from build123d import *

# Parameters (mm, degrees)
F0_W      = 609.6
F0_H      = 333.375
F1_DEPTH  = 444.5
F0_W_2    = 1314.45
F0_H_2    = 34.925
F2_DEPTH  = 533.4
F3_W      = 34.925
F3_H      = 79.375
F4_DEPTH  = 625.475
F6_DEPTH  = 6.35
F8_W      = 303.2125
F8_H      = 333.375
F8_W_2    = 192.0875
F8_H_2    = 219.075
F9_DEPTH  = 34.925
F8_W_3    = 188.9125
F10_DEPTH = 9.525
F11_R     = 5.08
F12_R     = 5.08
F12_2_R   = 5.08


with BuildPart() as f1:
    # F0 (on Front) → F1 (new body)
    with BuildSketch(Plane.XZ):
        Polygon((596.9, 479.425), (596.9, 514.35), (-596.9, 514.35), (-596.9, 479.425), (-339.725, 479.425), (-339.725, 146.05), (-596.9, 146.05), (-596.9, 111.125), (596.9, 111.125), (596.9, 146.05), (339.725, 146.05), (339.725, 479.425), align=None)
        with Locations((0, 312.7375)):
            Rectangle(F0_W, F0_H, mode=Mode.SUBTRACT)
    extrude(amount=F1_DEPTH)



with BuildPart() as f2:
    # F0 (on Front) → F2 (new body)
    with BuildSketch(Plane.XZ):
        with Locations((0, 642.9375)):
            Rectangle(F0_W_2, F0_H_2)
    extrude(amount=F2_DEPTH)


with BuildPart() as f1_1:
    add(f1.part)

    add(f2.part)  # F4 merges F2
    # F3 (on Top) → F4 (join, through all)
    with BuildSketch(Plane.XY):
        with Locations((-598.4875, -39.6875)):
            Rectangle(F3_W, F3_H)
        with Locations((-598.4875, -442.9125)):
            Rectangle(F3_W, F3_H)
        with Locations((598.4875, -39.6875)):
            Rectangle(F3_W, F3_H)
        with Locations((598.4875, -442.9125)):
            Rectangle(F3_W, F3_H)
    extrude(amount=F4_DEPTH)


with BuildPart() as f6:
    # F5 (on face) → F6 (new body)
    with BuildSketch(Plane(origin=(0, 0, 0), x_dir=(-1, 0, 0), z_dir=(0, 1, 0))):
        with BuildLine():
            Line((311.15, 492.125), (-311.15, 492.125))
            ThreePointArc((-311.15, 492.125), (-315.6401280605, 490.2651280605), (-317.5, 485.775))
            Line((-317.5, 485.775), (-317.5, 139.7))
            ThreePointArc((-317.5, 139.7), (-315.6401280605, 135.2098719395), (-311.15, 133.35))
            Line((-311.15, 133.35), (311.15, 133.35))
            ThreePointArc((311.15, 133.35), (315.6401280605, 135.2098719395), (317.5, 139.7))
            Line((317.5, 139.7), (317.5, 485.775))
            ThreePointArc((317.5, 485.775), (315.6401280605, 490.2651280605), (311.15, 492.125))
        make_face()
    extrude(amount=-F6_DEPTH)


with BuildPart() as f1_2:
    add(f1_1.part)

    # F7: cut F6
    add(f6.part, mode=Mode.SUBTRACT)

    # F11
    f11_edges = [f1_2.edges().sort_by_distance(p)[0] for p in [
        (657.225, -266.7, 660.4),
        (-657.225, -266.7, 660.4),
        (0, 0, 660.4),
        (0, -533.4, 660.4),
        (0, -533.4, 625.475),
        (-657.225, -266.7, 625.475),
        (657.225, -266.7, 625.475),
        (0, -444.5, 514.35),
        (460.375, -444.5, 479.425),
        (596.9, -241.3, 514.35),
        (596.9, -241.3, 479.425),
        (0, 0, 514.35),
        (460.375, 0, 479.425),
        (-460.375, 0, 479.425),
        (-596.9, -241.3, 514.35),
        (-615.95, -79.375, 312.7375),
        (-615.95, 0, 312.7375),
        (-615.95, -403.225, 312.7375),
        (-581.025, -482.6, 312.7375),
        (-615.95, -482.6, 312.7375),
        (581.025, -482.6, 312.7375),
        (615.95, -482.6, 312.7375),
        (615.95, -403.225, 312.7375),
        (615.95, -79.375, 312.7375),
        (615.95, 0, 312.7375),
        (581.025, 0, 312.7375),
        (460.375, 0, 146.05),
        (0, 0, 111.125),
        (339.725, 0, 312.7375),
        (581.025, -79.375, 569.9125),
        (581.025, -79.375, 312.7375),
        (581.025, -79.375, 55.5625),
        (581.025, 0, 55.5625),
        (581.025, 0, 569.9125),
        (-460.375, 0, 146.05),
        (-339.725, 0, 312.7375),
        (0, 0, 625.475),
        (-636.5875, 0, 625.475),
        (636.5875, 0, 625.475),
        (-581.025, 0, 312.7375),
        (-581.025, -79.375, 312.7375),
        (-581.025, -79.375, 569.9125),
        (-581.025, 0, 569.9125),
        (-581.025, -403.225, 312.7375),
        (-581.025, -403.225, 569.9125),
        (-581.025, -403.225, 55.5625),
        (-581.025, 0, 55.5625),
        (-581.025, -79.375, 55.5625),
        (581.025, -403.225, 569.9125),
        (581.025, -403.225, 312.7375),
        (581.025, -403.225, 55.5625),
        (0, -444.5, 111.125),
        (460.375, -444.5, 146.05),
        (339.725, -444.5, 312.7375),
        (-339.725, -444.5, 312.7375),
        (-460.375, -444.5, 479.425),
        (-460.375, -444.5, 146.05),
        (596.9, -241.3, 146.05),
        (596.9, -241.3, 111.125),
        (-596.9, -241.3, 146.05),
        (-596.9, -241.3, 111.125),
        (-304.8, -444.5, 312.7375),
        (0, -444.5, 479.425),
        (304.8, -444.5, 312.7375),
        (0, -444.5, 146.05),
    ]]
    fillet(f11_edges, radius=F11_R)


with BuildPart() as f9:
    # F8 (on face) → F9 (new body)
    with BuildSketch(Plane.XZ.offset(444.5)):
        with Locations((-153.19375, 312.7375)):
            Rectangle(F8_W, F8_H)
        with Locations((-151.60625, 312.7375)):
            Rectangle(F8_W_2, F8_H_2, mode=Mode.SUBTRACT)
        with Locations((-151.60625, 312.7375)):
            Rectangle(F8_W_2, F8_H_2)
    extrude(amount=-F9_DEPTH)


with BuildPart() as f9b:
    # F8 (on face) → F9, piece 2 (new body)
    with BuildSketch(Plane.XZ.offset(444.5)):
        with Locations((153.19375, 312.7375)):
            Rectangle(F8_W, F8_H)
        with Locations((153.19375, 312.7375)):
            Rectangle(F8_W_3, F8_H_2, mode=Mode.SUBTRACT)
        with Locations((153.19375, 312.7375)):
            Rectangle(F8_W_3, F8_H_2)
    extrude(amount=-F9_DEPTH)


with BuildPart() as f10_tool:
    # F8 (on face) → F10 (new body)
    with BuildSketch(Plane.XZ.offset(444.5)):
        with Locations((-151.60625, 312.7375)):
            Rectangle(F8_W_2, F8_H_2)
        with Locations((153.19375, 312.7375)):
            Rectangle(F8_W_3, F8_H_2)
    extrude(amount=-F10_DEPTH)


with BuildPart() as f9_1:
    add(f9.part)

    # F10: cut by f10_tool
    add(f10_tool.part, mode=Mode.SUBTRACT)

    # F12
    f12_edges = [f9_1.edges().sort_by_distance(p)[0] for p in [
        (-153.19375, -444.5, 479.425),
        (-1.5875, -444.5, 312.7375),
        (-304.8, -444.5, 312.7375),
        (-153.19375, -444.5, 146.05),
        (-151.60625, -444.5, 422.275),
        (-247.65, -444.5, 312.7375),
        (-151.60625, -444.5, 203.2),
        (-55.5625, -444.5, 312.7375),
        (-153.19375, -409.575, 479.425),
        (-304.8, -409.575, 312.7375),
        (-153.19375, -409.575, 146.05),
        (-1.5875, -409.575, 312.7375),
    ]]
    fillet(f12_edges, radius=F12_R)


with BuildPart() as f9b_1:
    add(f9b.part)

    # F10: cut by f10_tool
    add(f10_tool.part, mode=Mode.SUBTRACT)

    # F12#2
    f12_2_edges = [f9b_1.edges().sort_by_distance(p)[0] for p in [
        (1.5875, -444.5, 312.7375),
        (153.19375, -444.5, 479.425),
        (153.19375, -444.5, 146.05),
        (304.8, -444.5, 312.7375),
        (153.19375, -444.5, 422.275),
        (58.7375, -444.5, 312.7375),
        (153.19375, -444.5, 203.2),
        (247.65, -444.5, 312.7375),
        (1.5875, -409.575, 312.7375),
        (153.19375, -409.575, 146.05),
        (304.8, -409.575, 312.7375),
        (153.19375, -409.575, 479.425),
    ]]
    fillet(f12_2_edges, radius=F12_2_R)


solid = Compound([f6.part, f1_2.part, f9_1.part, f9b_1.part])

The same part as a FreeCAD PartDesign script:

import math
import FreeCAD as App
import Part
import Sketcher
Q = App.Units.Quantity


def edges_at(feature, points):
    """Names of the edges that pass closest to the given points."""
    edges = feature.Shape.Edges
    near = lambda p: min(range(len(edges)), key=lambda i: edges[i].distToShape(Part.Vertex(*p))[0])
    return sorted({f"Edge{near(p) + 1}" for p in points})


def add_polygon(sketch, points):
    """Adds a closed chain of lines whose ends are joined by coincident constraints."""
    first, n = sketch.GeometryCount, len(points)
    for a, b in zip(points, points[1:] + points[:1]):
        sketch.addGeometry(Part.LineSegment(App.Vector(*a, 0), App.Vector(*b, 0)), False)
    for i in range(n):
        sketch.addConstraint(Sketcher.Constraint("Coincident", first + i, 2, first + (i + 1) % n, 1))

doc = App.newDocument("Part")
body = doc.addObject("PartDesign::Body", "Body")

sketch1 = body.newObject("Sketcher::SketchObject", "Sketch")
sketch1.AttachmentSupport = (doc.getObject("XZ_Plane"), [""])
sketch1.MapMode = "FlatFace"
add_polygon(sketch1, [(597, 479), (597, 514), (-597, 514), (-597, 479), (-340, 479), (-340, 146), (-597, 146), (-597, 111), (597, 111), (597, 146), (340, 146), (340, 479)])
add_polygon(sketch1, [(305, 146), (-305, 146), (-305, 479), (305, 479)])
sketch1.addConstraint([
    Sketcher.Constraint("Vertical", 0),
    Sketcher.Constraint("Horizontal", 1),
    Sketcher.Constraint("Vertical", 2),
    Sketcher.Constraint("Horizontal", 3),
    Sketcher.Constraint("Vertical", 4),
    Sketcher.Constraint("Horizontal", 5),
    Sketcher.Constraint("Vertical", 6),
    Sketcher.Constraint("Horizontal", 7),
    Sketcher.Constraint("Vertical", 8),
    Sketcher.Constraint("Horizontal", 9),
    Sketcher.Constraint("Vertical", 10),
    Sketcher.Constraint("Horizontal", 11),
    Sketcher.Constraint("Horizontal", 12),
    Sketcher.Constraint("Vertical", 13),
    Sketcher.Constraint("Horizontal", 14),
    Sketcher.Constraint("Vertical", 15),
    Sketcher.Constraint("Symmetric", 5, 2, 8, 2, -2),
    Sketcher.Constraint("Symmetric", 3, 2, 10, 2, -2),
    Sketcher.Constraint("Horizontal", 9, 2, 12, 2),
    Sketcher.Constraint("Horizontal", 11, 2, 13, 2),
    Sketcher.Constraint("Vertical", 2, 2, 5, 2),
    Sketcher.Constraint("Vertical", 0, 2, 7, 2),
    Sketcher.Constraint("Equal", 2, 6),
    Sketcher.Constraint("DistanceX", 1, 2, 1, 1, Q("47 in")),
    Sketcher.Constraint("DistanceX", 12, 2, 12, 1, Q("24 in")),
    Sketcher.Constraint("DistanceX", 12, 2, -1, 1, Q("12 in")),
    Sketcher.Constraint("DistanceY", 4, 2, 1, 2, Q("14.5 in")),
    Sketcher.Constraint("DistanceX", 3, 1, 3, 2, Q("10.125 in")),
    Sketcher.Constraint("DistanceY", 0, 1, 0, 2, Q("1.375 in")),
    Sketcher.Constraint("DistanceY", -1, 1, 0, 2, Q("20.25 in")),
])
pad1 = body.newObject("PartDesign::Pad", "Pad")
pad1.Profile = sketch1
pad1.Length = Q("17.5 in")
body2 = doc.addObject("PartDesign::Body", "Body001")

sketch2 = body2.newObject("Sketcher::SketchObject", "Sketch001")
sketch2.AttachmentSupport = (doc.getObject("XZ_Plane001"), [""])
sketch2.MapMode = "FlatFace"
add_polygon(sketch2, [(-657, 660), (-657, 625), (657, 625), (657, 660)])
sketch2.addConstraint([
    Sketcher.Constraint("Vertical", 0),
    Sketcher.Constraint("Horizontal", 1),
    Sketcher.Constraint("Vertical", 2),
    Sketcher.Constraint("Horizontal", 3),
    Sketcher.Constraint("DistanceY", -1, 1, 2, 2, Q("26 in")),
    Sketcher.Constraint("DistanceX", 1, 1, 1, 2, Q("51.75 in")),
    Sketcher.Constraint("DistanceY", 0, 2, 0, 1, Q("1.375 in")),
    Sketcher.Constraint("DistanceX", 0, 2, -1, 1, Q("25.875 in")),
])
pad2 = body2.newObject("PartDesign::Pad", "Pad001")
pad2.Profile = sketch2
pad2.Length = Q("21 in")
body.AllowCompound = True
doc.recompute()

boolean = body.newObject("PartDesign::Boolean", "Boolean")
boolean.Type = "Fuse"
boolean.addObjects([body2])

sketch3 = body.newObject("Sketcher::SketchObject", "Sketch002")
sketch3.AttachmentSupport = (doc.getObject("XY_Plane"), [""])
sketch3.MapMode = "FlatFace"
add_polygon(sketch3, [(-616, 0), (-616, -79), (-581, -79), (-581, 0)])
add_polygon(sketch3, [(-616, -403), (-616, -483), (-581, -483), (-581, -403)])
add_polygon(sketch3, [(581, 0), (581, -79), (616, -79), (616, 0)])
add_polygon(sketch3, [(581, -403), (581, -483), (616, -483), (616, -403)])
sketch3.addConstraint([
    Sketcher.Constraint("Vertical", 0),
    Sketcher.Constraint("Horizontal", 1),
    Sketcher.Constraint("Vertical", 2),
    Sketcher.Constraint("Horizontal", 3),
    Sketcher.Constraint("Vertical", 4),
    Sketcher.Constraint("Horizontal", 5),
    Sketcher.Constraint("Vertical", 6),
    Sketcher.Constraint("Horizontal", 7),
    Sketcher.Constraint("Vertical", 8),
    Sketcher.Constraint("Horizontal", 9),
    Sketcher.Constraint("Vertical", 10),
    Sketcher.Constraint("Horizontal", 11),
    Sketcher.Constraint("Vertical", 12),
    Sketcher.Constraint("Horizontal", 13),
    Sketcher.Constraint("Vertical", 14),
    Sketcher.Constraint("Horizontal", 15),
    Sketcher.Constraint("Symmetric", 3, 2, 10, 2, -1, 1),
    Sketcher.Constraint("Symmetric", 1, 2, 8, 2, -2),
    Sketcher.Constraint("Symmetric", 5, 2, 12, 2, -2),
    Sketcher.Constraint("Symmetric", 7, 2, 14, 2, -2),
    Sketcher.Constraint("PointOnObject", 2, 2, -1),
    Sketcher.Constraint("Vertical", 3, 2, 4, 2),
    Sketcher.Constraint("Vertical", 2, 2, 5, 2),
    Sketcher.Constraint("Equal", 2, 4),
    Sketcher.Constraint("DistanceY", 4, 2, -1, 1, Q("19 in")),
    Sketcher.Constraint("DistanceX", 0, 2, 9, 2, Q("48.5 in")),
    Sketcher.Constraint("DistanceX", 1, 1, 1, 2, Q("1.375 in")),
    Sketcher.Constraint("DistanceY", 0, 2, 0, 1, Q("3.125 in")),
])
pad3 = body.newObject("PartDesign::Pad", "Pad002")
pad3.Profile = sketch3
pad3.Type = "UpToLast"
body3 = doc.addObject("PartDesign::Body", "Body002")

sketch4 = body3.newObject("Sketcher::SketchObject", "Sketch003")
sketch4.AttachmentSupport = (doc.getObject("XZ_Plane002"), [""])
sketch4.MapMode = "FlatFace"
sketch4.addGeometry([
    Part.LineSegment(App.Vector(-311, 492, 0), App.Vector(311, 492, 0)),
    Part.ArcOfCircle(Part.Circle(App.Vector(311, 486, 0), App.Vector(0, 0, 1), 6), math.radians(0), math.radians(90)),
    Part.LineSegment(App.Vector(318, 486, 0), App.Vector(318, 140, 0)),
    Part.ArcOfCircle(Part.Circle(App.Vector(311, 140, 0), App.Vector(0, 0, 1), 6), math.radians(-90), math.radians(0)),
    Part.LineSegment(App.Vector(311, 133, 0), App.Vector(-311, 133, 0)),
    Part.ArcOfCircle(Part.Circle(App.Vector(-311, 140, 0), App.Vector(0, 0, 1), 6), math.radians(180), math.radians(270)),
    Part.LineSegment(App.Vector(-318, 140, 0), App.Vector(-318, 486, 0)),
    Part.ArcOfCircle(Part.Circle(App.Vector(-311, 486, 0), App.Vector(0, 0, 1), 6), math.radians(90), math.radians(180)),
], False)
sketch4.addConstraint([
    Sketcher.Constraint("Tangent", 0, 2, 1, 2),
    Sketcher.Constraint("Tangent", 1, 1, 2, 1),
    Sketcher.Constraint("Tangent", 2, 2, 3, 2),
    Sketcher.Constraint("Tangent", 3, 1, 4, 1),
    Sketcher.Constraint("Tangent", 4, 2, 5, 2),
    Sketcher.Constraint("Tangent", 5, 1, 6, 1),
    Sketcher.Constraint("Tangent", 6, 2, 7, 2),
    Sketcher.Constraint("Tangent", 7, 1, 0, 1),
    Sketcher.Constraint("Horizontal", 0),
    Sketcher.Constraint("Vertical", 2),
    Sketcher.Constraint("Horizontal", 4),
    Sketcher.Constraint("Vertical", 6),
    Sketcher.Constraint("Equal", 1, 3),
    Sketcher.Constraint("Equal", 3, 5),
    Sketcher.Constraint("Equal", 5, 7),
    Sketcher.Constraint("Radius", 1, Q("0.25 in")),
    Sketcher.Constraint("DistanceX", 0, 1, 0, 2, Q("24.5 in")),
    Sketcher.Constraint("DistanceY", -1, 1, 3, 3, Q("5.5 in")),
    Sketcher.Constraint("DistanceX", -1, 1, 1, 1, Q("12.5 in")),
    Sketcher.Constraint("DistanceY", 2, 2, 2, 1, Q("13.625 in")),
])
pad4 = body3.newObject("PartDesign::Pad", "Pad003")
pad4.Profile = sketch4
pad4.Length = Q("0.25 in")
doc.recompute()

body4 = doc.addObject("PartDesign::Body", "Body003")
body4.BaseFeature = body3
boolean2 = body.newObject("PartDesign::Boolean", "Boolean001")
boolean2.Type = "Cut"
boolean2.addObjects([body4])
doc.recompute()

fillet = body.newObject("PartDesign::Fillet", "Fillet")
fillet.Base = (boolean2, edges_at(boolean2, [
    (657.225, -266.7, 660.4),
    (-657.225, -266.7, 660.4),
    (0, 0, 660.4),
    (0, -533.4, 660.4),
    (0, -533.4, 625.475),
    (-657.225, -266.7, 625.475),
    (657.225, -266.7, 625.475),
    (0, -444.5, 514.35),
    (460.375, -444.5, 479.425),
    (596.9, -241.3, 514.35),
    (596.9, -241.3, 479.425),
    (0, 0, 514.35),
    (460.375, 0, 479.425),
    (-460.375, 0, 479.425),
    (-596.9, -241.3, 514.35),
    (-615.95, -79.375, 312.738),
    (-615.95, 0, 312.738),
    (-615.95, -403.225, 312.738),
    (-581.025, -482.6, 312.738),
    (-615.95, -482.6, 312.738),
    (581.025, -482.6, 312.738),
    (615.95, -482.6, 312.738),
    (615.95, -403.225, 312.738),
    (615.95, -79.375, 312.738),
    (615.95, 0, 312.738),
    (581.025, 0, 312.738),
    (460.375, 0, 146.05),
    (0, 0, 111.125),
    (339.725, 0, 312.738),
    (581.025, -79.375, 569.913),
    (581.025, -79.375, 312.738),
    (581.025, -79.375, 55.562),
    (581.025, 0, 55.562),
    (581.025, 0, 569.913),
    (-460.375, 0, 146.05),
    (-339.725, 0, 312.738),
    (0, 0, 625.475),
    (-636.587, 0, 625.475),
    (636.587, 0, 625.475),
    (-581.025, 0, 312.738),
    (-581.025, -79.375, 312.738),
    (-581.025, -79.375, 569.913),
    (-581.025, 0, 569.913),
    (-581.025, -403.225, 312.738),
    (-581.025, -403.225, 569.913),
    (-581.025, -403.225, 55.562),
    (-581.025, 0, 55.562),
    (-581.025, -79.375, 55.562),
    (581.025, -403.225, 569.913),
    (581.025, -403.225, 312.738),
    (581.025, -403.225, 55.562),
    (0, -444.5, 111.125),
    (460.375, -444.5, 146.05),
    (339.725, -444.5, 312.738),
    (-339.725, -444.5, 312.738),
    (-460.375, -444.5, 479.425),
    (-460.375, -444.5, 146.05),
    (596.9, -241.3, 146.05),
    (596.9, -241.3, 111.125),
    (-596.9, -241.3, 146.05),
    (-596.9, -241.3, 111.125),
    (-304.8, -444.5, 312.738),
    (0, -444.5, 479.425),
    (304.8, -444.5, 312.738),
    (0, -444.5, 146.05),
]))
fillet.Radius = Q("0.2 in")
body5 = doc.addObject("PartDesign::Body", "Body004")

sketch5 = body5.newObject("Sketcher::SketchObject", "Sketch004")
sketch5.AttachmentSupport = (doc.getObject("XZ_Plane004"), [""])
sketch5.MapMode = "FlatFace"
sketch5.AttachmentOffset = App.Placement(App.Vector(0, 0, 17.5 * 25.4), App.Rotation())
add_polygon(sketch5, [(-305, 479), (-305, 146), (-2, 146), (-2, 479)])
sketch5.addConstraint([
    Sketcher.Constraint("Vertical", 0),
    Sketcher.Constraint("Horizontal", 1),
    Sketcher.Constraint("Vertical", 2),
    Sketcher.Constraint("Horizontal", 3),
    Sketcher.Constraint("DistanceX", 0, 2, -1, 1, Q("12 in")),
    Sketcher.Constraint("DistanceX", 1, 1, 1, 2, Q("11.9375 in")),
    Sketcher.Constraint("DistanceY", 0, 2, 0, 1, Q("13.125 in")),
    Sketcher.Constraint("DistanceY", -1, 1, 0, 2, Q("5.75 in")),
])
pad5 = body5.newObject("PartDesign::Pad", "Pad004")
pad5.Profile = sketch5
pad5.Length = Q("1.375 in")
pad5.Reversed = True
body6 = doc.addObject("PartDesign::Body", "Body005")

sketch6 = body6.newObject("Sketcher::SketchObject", "Sketch005")
sketch6.AttachmentSupport = (doc.getObject("XZ_Plane005"), [""])
sketch6.MapMode = "FlatFace"
sketch6.AttachmentOffset = App.Placement(App.Vector(0, 0, 17.5 * 25.4), App.Rotation())
add_polygon(sketch6, [(2, 479), (2, 146), (305, 146), (305, 479)])
sketch6.addConstraint([
    Sketcher.Constraint("Vertical", 0),
    Sketcher.Constraint("Horizontal", 1),
    Sketcher.Constraint("Vertical", 2),
    Sketcher.Constraint("Horizontal", 3),
    Sketcher.Constraint("DistanceX", -1, 1, 1, 2, Q("12 in")),
    Sketcher.Constraint("DistanceX", 1, 1, 1, 2, Q("11.9375 in")),
    Sketcher.Constraint("DistanceY", 0, 2, 0, 1, Q("13.125 in")),
    Sketcher.Constraint("DistanceY", -1, 1, 0, 2, Q("5.75 in")),
])
pad6 = body6.newObject("PartDesign::Pad", "Pad005")
pad6.Profile = sketch6
pad6.Length = Q("1.375 in")
pad6.Reversed = True
body7 = doc.addObject("PartDesign::Body", "Body006")
body7.AllowCompound = True

sketch7 = body7.newObject("Sketcher::SketchObject", "Sketch006")
sketch7.AttachmentSupport = (doc.getObject("XZ_Plane006"), [""])
sketch7.MapMode = "FlatFace"
sketch7.AttachmentOffset = App.Placement(App.Vector(0, 0, 17.5 * 25.4), App.Rotation())
add_polygon(sketch7, [(-248, 422), (-248, 203), (-56, 203), (-56, 422)])
add_polygon(sketch7, [(59, 422), (59, 203), (248, 203), (248, 422)])
sketch7.addConstraint([
    Sketcher.Constraint("Vertical", 0),
    Sketcher.Constraint("Horizontal", 1),
    Sketcher.Constraint("Vertical", 2),
    Sketcher.Constraint("Horizontal", 3),
    Sketcher.Constraint("Vertical", 4),
    Sketcher.Constraint("Horizontal", 5),
    Sketcher.Constraint("Vertical", 6),
    Sketcher.Constraint("Horizontal", 7),
    Sketcher.Constraint("Symmetric", 0, 2, 5, 2, -2),
    Sketcher.Constraint("Horizontal", 3, 2, 6, 2),
    Sketcher.Constraint("DistanceY", -1, 1, 0, 2, Q("8 in")),
    Sketcher.Constraint("DistanceX", 1, 2, 4, 2, Q("4.5 in")),
    Sketcher.Constraint("DistanceX", 0, 2, 5, 2, Q("19.5 in")),
    Sketcher.Constraint("DistanceX", 1, 1, 1, 2, Q("7.5625 in")),
    Sketcher.Constraint("DistanceY", 0, 2, 0, 1, Q("8.625 in")),
])
pad7 = body7.newObject("PartDesign::Pad", "Pad006")
pad7.Profile = sketch7
pad7.Length = Q("0.375 in")
pad7.Reversed = True
doc.recompute()

body8 = doc.addObject("PartDesign::Body", "Body007")
body8.BaseFeature = body7
boolean3 = body5.newObject("PartDesign::Boolean", "Boolean002")
boolean3.Type = "Cut"
boolean3.addObjects([body8])
doc.recompute()

fillet2 = body5.newObject("PartDesign::Fillet", "Fillet001")
fillet2.Base = (boolean3, edges_at(boolean3, [
    (-153.194, -444.5, 479.425),
    (-1.587, -444.5, 312.738),
    (-304.8, -444.5, 312.738),
    (-153.194, -444.5, 146.05),
    (-151.606, -444.5, 422.275),
    (-247.65, -444.5, 312.738),
    (-151.606, -444.5, 203.2),
    (-55.562, -444.5, 312.738),
    (-153.194, -409.575, 479.425),
    (-304.8, -409.575, 312.738),
    (-153.194, -409.575, 146.05),
    (-1.587, -409.575, 312.738),
]))
fillet2.Radius = Q("0.2 in")
doc.recompute()

boolean4 = body6.newObject("PartDesign::Boolean", "Boolean003")
boolean4.Type = "Cut"
boolean4.addObjects([body7])
doc.recompute()

fillet3 = body6.newObject("PartDesign::Fillet", "Fillet002")
fillet3.Base = (boolean4, edges_at(boolean4, [
    (1.587, -444.5, 312.738),
    (153.194, -444.5, 479.425),
    (153.194, -444.5, 146.05),
    (304.8, -444.5, 312.738),
    (153.194, -444.5, 422.275),
    (58.737, -444.5, 312.738),
    (153.194, -444.5, 203.2),
    (247.65, -444.5, 312.738),
    (1.587, -409.575, 312.738),
    (153.194, -409.575, 146.05),
    (304.8, -409.575, 312.738),
    (153.194, -409.575, 479.425),
]))
fillet3.Radius = Q("0.2 in")

doc.recompute()
